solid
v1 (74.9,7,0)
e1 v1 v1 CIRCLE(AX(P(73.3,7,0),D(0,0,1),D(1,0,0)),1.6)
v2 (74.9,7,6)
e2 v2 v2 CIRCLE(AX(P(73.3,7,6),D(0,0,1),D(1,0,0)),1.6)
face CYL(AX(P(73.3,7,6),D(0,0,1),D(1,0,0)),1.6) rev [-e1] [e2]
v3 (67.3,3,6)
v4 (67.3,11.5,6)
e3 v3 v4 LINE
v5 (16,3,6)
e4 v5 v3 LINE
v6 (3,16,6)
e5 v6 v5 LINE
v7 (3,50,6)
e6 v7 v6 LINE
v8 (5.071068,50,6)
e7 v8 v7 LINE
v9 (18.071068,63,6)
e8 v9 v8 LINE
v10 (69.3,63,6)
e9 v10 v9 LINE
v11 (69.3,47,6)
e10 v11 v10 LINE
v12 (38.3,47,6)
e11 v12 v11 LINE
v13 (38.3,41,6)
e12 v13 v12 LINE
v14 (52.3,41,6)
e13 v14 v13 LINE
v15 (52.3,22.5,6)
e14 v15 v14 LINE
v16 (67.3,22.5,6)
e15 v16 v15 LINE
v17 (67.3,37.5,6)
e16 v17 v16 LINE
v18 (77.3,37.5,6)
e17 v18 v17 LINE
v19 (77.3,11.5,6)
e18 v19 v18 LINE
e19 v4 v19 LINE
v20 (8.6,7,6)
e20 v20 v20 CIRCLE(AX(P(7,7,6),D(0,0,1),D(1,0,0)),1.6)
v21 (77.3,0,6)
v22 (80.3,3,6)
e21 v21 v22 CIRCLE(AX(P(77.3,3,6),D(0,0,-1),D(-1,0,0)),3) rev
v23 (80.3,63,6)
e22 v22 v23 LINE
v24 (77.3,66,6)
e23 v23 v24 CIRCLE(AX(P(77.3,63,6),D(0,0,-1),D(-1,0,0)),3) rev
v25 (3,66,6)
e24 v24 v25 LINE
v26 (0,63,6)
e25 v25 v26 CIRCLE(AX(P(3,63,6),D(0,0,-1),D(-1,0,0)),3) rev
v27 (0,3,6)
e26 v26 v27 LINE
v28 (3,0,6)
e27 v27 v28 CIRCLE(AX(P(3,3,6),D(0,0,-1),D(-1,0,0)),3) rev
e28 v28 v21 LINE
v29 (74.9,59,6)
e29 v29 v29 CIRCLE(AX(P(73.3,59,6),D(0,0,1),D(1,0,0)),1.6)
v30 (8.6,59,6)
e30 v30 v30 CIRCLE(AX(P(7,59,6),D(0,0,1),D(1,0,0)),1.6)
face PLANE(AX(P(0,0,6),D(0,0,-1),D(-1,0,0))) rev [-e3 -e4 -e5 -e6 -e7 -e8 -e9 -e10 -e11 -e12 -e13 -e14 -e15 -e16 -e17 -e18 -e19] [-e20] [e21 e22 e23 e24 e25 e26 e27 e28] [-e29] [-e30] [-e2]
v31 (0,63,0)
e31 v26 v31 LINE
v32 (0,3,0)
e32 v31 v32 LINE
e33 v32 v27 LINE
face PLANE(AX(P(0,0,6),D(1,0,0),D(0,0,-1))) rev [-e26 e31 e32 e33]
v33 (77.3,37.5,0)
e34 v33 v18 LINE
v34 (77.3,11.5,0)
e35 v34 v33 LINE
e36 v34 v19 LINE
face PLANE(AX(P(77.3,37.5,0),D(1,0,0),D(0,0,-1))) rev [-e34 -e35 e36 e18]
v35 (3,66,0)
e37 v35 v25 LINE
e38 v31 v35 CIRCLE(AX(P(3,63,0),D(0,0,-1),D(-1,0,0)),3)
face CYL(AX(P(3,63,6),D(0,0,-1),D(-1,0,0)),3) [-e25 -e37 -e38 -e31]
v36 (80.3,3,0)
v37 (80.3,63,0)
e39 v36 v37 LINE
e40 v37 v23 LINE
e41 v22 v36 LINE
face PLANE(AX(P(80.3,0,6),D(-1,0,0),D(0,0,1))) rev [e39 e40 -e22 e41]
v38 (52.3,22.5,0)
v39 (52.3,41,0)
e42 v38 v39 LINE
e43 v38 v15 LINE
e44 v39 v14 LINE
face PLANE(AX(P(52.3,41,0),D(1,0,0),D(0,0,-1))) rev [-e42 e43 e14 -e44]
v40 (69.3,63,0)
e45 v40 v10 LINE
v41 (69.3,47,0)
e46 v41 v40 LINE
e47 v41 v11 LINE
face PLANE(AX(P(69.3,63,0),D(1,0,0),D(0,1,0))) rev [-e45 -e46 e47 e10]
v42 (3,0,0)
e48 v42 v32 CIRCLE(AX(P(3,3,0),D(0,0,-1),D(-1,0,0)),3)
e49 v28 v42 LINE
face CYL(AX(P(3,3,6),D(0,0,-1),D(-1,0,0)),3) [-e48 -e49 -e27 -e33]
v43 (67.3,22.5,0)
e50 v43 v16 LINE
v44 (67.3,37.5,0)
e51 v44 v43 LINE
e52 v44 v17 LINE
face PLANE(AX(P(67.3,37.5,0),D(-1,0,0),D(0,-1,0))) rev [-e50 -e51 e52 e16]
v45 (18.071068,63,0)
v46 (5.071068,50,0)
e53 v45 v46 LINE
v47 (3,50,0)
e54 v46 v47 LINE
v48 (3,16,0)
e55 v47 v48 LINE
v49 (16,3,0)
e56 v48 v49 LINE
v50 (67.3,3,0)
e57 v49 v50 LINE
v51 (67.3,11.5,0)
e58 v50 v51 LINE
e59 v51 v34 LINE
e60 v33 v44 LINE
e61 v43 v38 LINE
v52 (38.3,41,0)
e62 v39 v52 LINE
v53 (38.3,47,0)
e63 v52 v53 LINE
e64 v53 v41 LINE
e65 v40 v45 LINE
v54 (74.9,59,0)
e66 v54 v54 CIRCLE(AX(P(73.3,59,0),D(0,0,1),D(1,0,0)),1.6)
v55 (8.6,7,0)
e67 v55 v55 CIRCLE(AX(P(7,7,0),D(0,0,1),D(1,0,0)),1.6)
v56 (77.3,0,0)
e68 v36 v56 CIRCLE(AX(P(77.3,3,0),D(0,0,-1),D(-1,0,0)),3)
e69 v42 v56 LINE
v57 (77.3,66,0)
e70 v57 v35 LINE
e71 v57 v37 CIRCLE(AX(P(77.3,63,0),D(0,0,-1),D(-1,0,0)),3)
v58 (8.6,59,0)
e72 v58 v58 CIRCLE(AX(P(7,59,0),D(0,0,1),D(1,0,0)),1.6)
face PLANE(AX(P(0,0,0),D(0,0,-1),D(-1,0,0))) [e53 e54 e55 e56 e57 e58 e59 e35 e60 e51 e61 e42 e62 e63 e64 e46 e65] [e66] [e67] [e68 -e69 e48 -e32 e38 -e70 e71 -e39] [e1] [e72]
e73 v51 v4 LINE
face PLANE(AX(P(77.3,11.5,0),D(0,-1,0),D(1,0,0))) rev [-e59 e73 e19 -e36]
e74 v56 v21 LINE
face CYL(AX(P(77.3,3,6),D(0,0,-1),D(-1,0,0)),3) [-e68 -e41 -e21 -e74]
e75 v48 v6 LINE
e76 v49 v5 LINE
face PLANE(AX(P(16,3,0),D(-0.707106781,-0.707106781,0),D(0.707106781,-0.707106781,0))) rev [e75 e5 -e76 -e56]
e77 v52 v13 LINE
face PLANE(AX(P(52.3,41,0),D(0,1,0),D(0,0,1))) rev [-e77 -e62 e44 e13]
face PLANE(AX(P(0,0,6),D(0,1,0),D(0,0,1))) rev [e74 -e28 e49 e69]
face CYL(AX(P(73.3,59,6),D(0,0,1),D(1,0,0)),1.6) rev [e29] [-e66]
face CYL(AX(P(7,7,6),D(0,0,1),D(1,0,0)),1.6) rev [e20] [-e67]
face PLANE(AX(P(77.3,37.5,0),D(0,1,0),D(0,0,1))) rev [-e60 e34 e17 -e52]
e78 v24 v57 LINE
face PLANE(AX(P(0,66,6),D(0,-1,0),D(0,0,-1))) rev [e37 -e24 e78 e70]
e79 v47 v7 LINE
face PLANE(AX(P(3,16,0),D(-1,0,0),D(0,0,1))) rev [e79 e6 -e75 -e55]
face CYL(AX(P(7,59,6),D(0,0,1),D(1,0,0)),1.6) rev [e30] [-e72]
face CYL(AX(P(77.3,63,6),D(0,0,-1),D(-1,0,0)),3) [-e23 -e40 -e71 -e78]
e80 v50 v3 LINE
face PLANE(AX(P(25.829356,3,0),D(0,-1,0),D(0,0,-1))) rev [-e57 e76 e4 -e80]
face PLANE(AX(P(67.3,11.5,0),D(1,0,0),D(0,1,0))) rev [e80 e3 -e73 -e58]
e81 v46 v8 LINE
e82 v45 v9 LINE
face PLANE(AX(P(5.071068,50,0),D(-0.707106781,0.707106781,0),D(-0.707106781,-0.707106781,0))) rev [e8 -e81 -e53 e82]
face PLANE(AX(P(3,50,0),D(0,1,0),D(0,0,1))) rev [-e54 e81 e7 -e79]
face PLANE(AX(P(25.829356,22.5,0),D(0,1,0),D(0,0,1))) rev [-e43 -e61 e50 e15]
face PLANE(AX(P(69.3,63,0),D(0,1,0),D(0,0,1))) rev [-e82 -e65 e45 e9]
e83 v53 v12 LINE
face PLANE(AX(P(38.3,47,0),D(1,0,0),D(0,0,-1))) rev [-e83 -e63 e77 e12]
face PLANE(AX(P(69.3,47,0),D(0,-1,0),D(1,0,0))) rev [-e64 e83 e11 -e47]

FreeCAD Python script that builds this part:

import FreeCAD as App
import Part
import Sketcher

V = App.Vector
Q = App.Units.Quantity


def edges_at(feature, points):
    """Names of the edges that pass closest to the given points."""
    edges = feature.Shape.Edges
    near = lambda p: min(range(len(edges)), key=lambda i: edges[i].distToShape(Part.Vertex(*p))[0])
    return sorted({f"Edge{near(p) + 1}" for p in points})

doc = App.newDocument("Part")
params = doc.addObject("Spreadsheet::Sheet", "Params")
for row, (alias, value) in enumerate([
    ("sketch1_height", "66 mm"),
    ("sketch1_width", "80.3 mm"),
    ("pad1_length", "6 mm"),
    ("sketch2_diameter", "3.2 mm"),
    ("hole_diameter", "3.2 mm"),
    ("fillet_radius", "3 mm"),
    ("sketch3_width", "19 mm"),
    ("sketch3_width2", "31 mm"),
    ("sketch3_width3", "7 mm"),
    ("sketch3_width4", "13 mm"),
    ("sketch3_width5", "40 mm"),
    ("sketch4_width", "15 mm"),
    ("sketch4_width2", "14 mm"),
    ("sketch4_width3", "31 mm"),
    ("sketch4_height", "6 mm"),
    ("sketch4_height2", "16 mm"),
], start=1):
    params.set(f"A{row}", alias)
    params.set(f"B{row}", "=" + value)
    params.setAlias(f"B{row}", alias)

body = doc.addObject("PartDesign::Body", "Body")

sketch1 = body.newObject("Sketcher::SketchObject", "Sketch")
sketch1.AttachmentSupport = (doc.getObject("XY_Plane"), [""])
sketch1.MapMode = "FlatFace"
sketch1.addGeometry([
    Part.LineSegment(V(0, 66, 0), V(0, 0, 0)),
    Part.LineSegment(V(0, 0, 0), V(80.3, 0, 0)),
    Part.LineSegment(V(80.3, 0, 0), V(80.3, 66, 0)),
    Part.LineSegment(V(80.3, 66, 0), V(0, 66, 0)),
], False)
sketch1.addConstraint([
    Sketcher.Constraint("Coincident", 0, 2, 1, 1),
    Sketcher.Constraint("Coincident", 1, 2, 2, 1),
    Sketcher.Constraint("Coincident", 2, 2, 3, 1),
    Sketcher.Constraint("Coincident", 3, 2, 0, 1),
    Sketcher.Constraint("Vertical", 0),
    Sketcher.Constraint("Horizontal", 1),
    Sketcher.Constraint("Vertical", 2),
    Sketcher.Constraint("Horizontal", 3),
    Sketcher.Constraint("Coincident", 0, 2, -1, 1),
    Sketcher.Constraint("DistanceY", 0, 2, 0, 1, Q("66 mm")),
    Sketcher.Constraint("DistanceX", 1, 1, 1, 2, Q("80.3 mm")),
])
sketch1.setExpression("Constraints[9]", "Params.sketch1_height")
sketch1.setExpression("Constraints[10]", "Params.sketch1_width")
pad1 = body.newObject("PartDesign::Pad", "Pad")
pad1.Profile = sketch1
pad1.setExpression("Length", "Params.pad1_length")

sketch2 = body.newObject("Sketcher::SketchObject", "Sketch001")
sketch2.AttachmentSupport = (doc.getObject("XY_Plane"), [""])
sketch2.MapMode = "FlatFace"
sketch2.AttachmentOffset = App.Placement(V(0, 0, 6), App.Rotation())
sketch2.addGeometry([
    Part.Circle(V(7, 59, 0), V(0, 0, 1), 1.6),
    Part.Circle(V(73.3, 59, 0), V(0, 0, 1), 1.6),
    Part.Circle(V(73.3, 7, 0), V(0, 0, 1), 1.6),
    Part.Circle(V(7, 7, 0), V(0, 0, 1), 1.6),
], False)
sketch2.addConstraint([
    Sketcher.Constraint("Equal", 0, 1),
    Sketcher.Constraint("Equal", 1, 2),
    Sketcher.Constraint("Equal", 2, 3),
    Sketcher.Constraint("Horizontal", 0, 3, 1, 3),
    Sketcher.Constraint("Horizontal", 2, 3, 3, 3),
    Sketcher.Constraint("Vertical", 1, 3, 2, 3),
    Sketcher.Constraint("Vertical", 0, 3, 3, 3),
    Sketcher.Constraint("Diameter", 0, Q("3.2 mm")),
    Sketcher.Constraint("DistanceX", -1, 1, 0, 3, Q("7 mm")),
    Sketcher.Constraint("DistanceY", -1, 1, 0, 3, Q("59 mm")),
    Sketcher.Constraint("DistanceY", -1, 1, 2, 3, Q("7 mm")),
    Sketcher.Constraint("DistanceX", -1, 1, 1, 3, Q("73.3 mm")),
])
sketch2.setExpression("Constraints[7]", "Params.sketch2_diameter")
doc.recompute()
hole = body.newObject("PartDesign::Hole", "Hole")
hole.Profile = sketch2
hole.ThreadType = "None"
hole.setExpression("Diameter", "Params.hole_diameter")
hole.DepthType = "ThroughAll"
doc.recompute()

fillet = body.newObject("PartDesign::Fillet", "Fillet")
fillet.Base = (hole, edges_at(hole, [
    (0, 66, 3),
    (80.3, 66, 3),
    (80.3, 0, 3),
    (0, 0, 3),
]))
fillet.setExpression("Radius", "Params.fillet_radius")

sketch3 = body.newObject("Sketcher::SketchObject", "Sketch002")
sketch3.AttachmentSupport = (doc.getObject("XY_Plane"), [""])
sketch3.MapMode = "FlatFace"
sketch3.AttachmentOffset = App.Placement(V(0, 0, 6), App.Rotation())
sketch3.addGeometry([
    Part.LineSegment(V(3, 50, 0), V(3, 16, 0)),
    Part.LineSegment(V(3, 16, 0), V(22, 16, 0)),
    Part.LineSegment(V(22, 16, 0), V(22, 50, 0)),
    Part.LineSegment(V(22, 50, 0), V(3, 50, 0)),
    Part.LineSegment(V(38.3, 63, 0), V(38.3, 47, 0)),
    Part.LineSegment(V(38.3, 47, 0), V(69.3, 47, 0)),
    Part.LineSegment(V(69.3, 47, 0), V(69.3, 63, 0)),
    Part.LineSegment(V(69.3, 63, 0), V(38.3, 63, 0)),
    Part.LineSegment(V(28, 56.5, 0), V(28, 49.5, 0)),
    Part.LineSegment(V(28, 49.5, 0), V(35, 49.5, 0)),
    Part.LineSegment(V(35, 49.5, 0), V(35, 56.5, 0)),
    Part.LineSegment(V(35, 56.5, 0), V(28, 56.5, 0)),
    Part.LineSegment(V(39.3, 41, 0), V(39.3, 24, 0)),
    Part.LineSegment(V(39.3, 24, 0), V(52.3, 24, 0)),
    Part.LineSegment(V(52.3, 24, 0), V(52.3, 41, 0)),
    Part.LineSegment(V(52.3, 41, 0), V(39.3, 41, 0)),
    Part.LineSegment(V(25.829356, 22.5, 0), V(25.829356, 3, 0)),
    Part.LineSegment(V(25.829356, 3, 0), V(65.829356, 3, 0)),
    Part.LineSegment(V(65.829356, 3, 0), V(65.829356, 22.5, 0)),
    Part.LineSegment(V(65.829356, 22.5, 0), V(25.829356, 22.5, 0)),
    Part.LineSegment(V(67.3, 37.5, 0), V(67.3, 11.5, 0)),
    Part.LineSegment(V(67.3, 11.5, 0), V(77.3, 11.5, 0)),
    Part.LineSegment(V(77.3, 11.5, 0), V(77.3, 37.5, 0)),
    Part.LineSegment(V(77.3, 37.5, 0), V(67.3, 37.5, 0)),
], False)
sketch3.addConstraint([
    Sketcher.Constraint("Coincident", 0, 2, 1, 1),
    Sketcher.Constraint("Coincident", 1, 2, 2, 1),
    Sketcher.Constraint("Coincident", 2, 2, 3, 1),
    Sketcher.Constraint("Coincident", 3, 2, 0, 1),
    Sketcher.Constraint("Coincident", 4, 2, 5, 1),
    Sketcher.Constraint("Coincident", 5, 2, 6, 1),
    Sketcher.Constraint("Coincident", 6, 2, 7, 1),
    Sketcher.Constraint("Coincident", 7, 2, 4, 1),
    Sketcher.Constraint("Coincident", 8, 2, 9, 1),
    Sketcher.Constraint("Coincident", 9, 2, 10, 1),
    Sketcher.Constraint("Coincident", 10, 2, 11, 1),
    Sketcher.Constraint("Coincident", 11, 2, 8, 1),
    Sketcher.Constraint("Coincident", 12, 2, 13, 1),
    Sketcher.Constraint("Coincident", 13, 2, 14, 1),
    Sketcher.Constraint("Coincident", 14, 2, 15, 1),
    Sketcher.Constraint("Coincident", 15, 2, 12, 1),
    Sketcher.Constraint("Coincident", 16, 2, 17, 1),
    Sketcher.Constraint("Coincident", 17, 2, 18, 1),
    Sketcher.Constraint("Coincident", 18, 2, 19, 1),
    Sketcher.Constraint("Coincident", 19, 2, 16, 1),
    Sketcher.Constraint("Coincident", 20, 2, 21, 1),
    Sketcher.Constraint("Coincident", 21, 2, 22, 1),
    Sketcher.Constraint("Coincident", 22, 2, 23, 1),
    Sketcher.Constraint("Coincident", 23, 2, 20, 1),
    Sketcher.Constraint("Vertical", 0),
    Sketcher.Constraint("Horizontal", 1),
    Sketcher.Constraint("Vertical", 2),
    Sketcher.Constraint("Horizontal", 3),
    Sketcher.Constraint("Vertical", 4),
    Sketcher.Constraint("Horizontal", 5),
    Sketcher.Constraint("Vertical", 6),
    Sketcher.Constraint("Horizontal", 7),
    Sketcher.Constraint("Vertical", 8),
    Sketcher.Constraint("Horizontal", 9),
    Sketcher.Constraint("Vertical", 10),
    Sketcher.Constraint("Horizontal", 11),
    Sketcher.Constraint("Vertical", 12),
    Sketcher.Constraint("Horizontal", 13),
    Sketcher.Constraint("Vertical", 14),
    Sketcher.Constraint("Horizontal", 15),
    Sketcher.Constraint("Vertical", 16),
    Sketcher.Constraint("Horizontal", 17),
    Sketcher.Constraint("Vertical", 18),
    Sketcher.Constraint("Horizontal", 19),
    Sketcher.Constraint("Vertical", 20),
    Sketcher.Constraint("Horizontal", 21),
    Sketcher.Constraint("Vertical", 22),
    Sketcher.Constraint("Horizontal", 23),
    Sketcher.Constraint("Equal", 11, 8),
    Sketcher.Constraint("DistanceX", 1, 1, 1, 2, Q("19 mm")),
    Sketcher.Constraint("DistanceX", 5, 1, 5, 2, Q("31 mm")),
    Sketcher.Constraint("DistanceX", 9, 1, 9, 2, Q("7 mm")),
    Sketcher.Constraint("DistanceX", 13, 1, 13, 2, Q("13 mm")),
    Sketcher.Constraint("DistanceX", 17, 1, 17, 2, Q("40 mm")),
    Sketcher.Constraint("DistanceX", 21, 1, 21, 2, Q("10 mm")),
    Sketcher.Constraint("DistanceY", 0, 2, 0, 1, Q("34 mm")),
    Sketcher.Constraint("DistanceY", 4, 2, 4, 1, Q("16 mm")),
    Sketcher.Constraint("DistanceY", 12, 2, 12, 1, Q("17 mm")),
    Sketcher.Constraint("DistanceY", 20, 2, 20, 1, Q("26 mm")),
    Sketcher.Constraint("DistanceY", 16, 2, 16, 1, Q("19.5 mm")),
    Sketcher.Constraint("DistanceX", -1, 1, 0, 2, Q("3 mm")),
    Sketcher.Constraint("DistanceY", -1, 1, 0, 2, Q("16 mm")),
    Sketcher.Constraint("DistanceY", -1, 1, 4, 2, Q("47 mm")),
    Sketcher.Constraint("DistanceX", -1, 1, 8, 2, Q("28 mm")),
    Sketcher.Constraint("DistanceY", -1, 1, 12, 2, Q("24 mm")),
    Sketcher.Constraint("DistanceY", -1, 1, 16, 2, Q("3 mm")),
    Sketcher.Constraint("DistanceX", 4, 2, 12, 2, Q("1 mm")),
    Sketcher.Constraint("DistanceY", 20, 2, 18, 2, Q("11 mm")),
    Sketcher.Constraint("DistanceX", 13, 2, 20, 2, Q("15 mm")),
    Sketcher.Constraint("DistanceX", -1, 1, 4, 2, Q("38.3 mm")),
    Sketcher.Constraint("DistanceY", -1, 1, 8, 2, Q("49.5 mm")),
    Sketcher.Constraint("DistanceX", -1, 1, 16, 2, Q("25.829356 mm")),
])
sketch3.setExpression("Constraints[49]", "Params.sketch3_width")
sketch3.setExpression("Constraints[50]", "Params.sketch3_width2")
sketch3.setExpression("Constraints[51]", "Params.sketch3_width3")
sketch3.setExpression("Constraints[52]", "Params.sketch3_width4")
sketch3.setExpression("Constraints[53]", "Params.sketch3_width5")
pocket1 = body.newObject("PartDesign::Pocket", "Pocket")
pocket1.Profile = sketch3
pocket1.Type = "ThroughAll"

sketch4 = body.newObject("Sketcher::SketchObject", "Sketch003")
sketch4.AttachmentSupport = (doc.getObject("XY_Plane"), [""])
sketch4.MapMode = "FlatFace"
sketch4.AttachmentOffset = App.Placement(V(0, 0, 6), App.Rotation())
sketch4.addGeometry([
    Part.LineSegment(V(67.3, 3, 0), V(67.3, 22.5, 0)),
    Part.LineSegment(V(67.3, 22.5, 0), V(52.3, 22.5, 0)),
    Part.LineSegment(V(52.3, 22.5, 0), V(52.3, 41, 0)),
    Part.LineSegment(V(52.3, 41, 0), V(38.3, 41, 0)),
    Part.LineSegment(V(38.3, 41, 0), V(38.3, 47, 0)),
    Part.LineSegment(V(38.3, 47, 0), V(69.3, 47, 0)),
    Part.LineSegment(V(69.3, 47, 0), V(69.3, 63, 0)),
    Part.LineSegment(V(69.3, 63, 0), V(18.071068, 63, 0)),
    Part.LineSegment(V(18.071068, 63, 0), V(5.071068, 50, 0)),
    Part.LineSegment(V(5.071068, 50, 0), V(3, 50, 0)),
    Part.LineSegment(V(3, 50, 0), V(3, 16, 0)),
    Part.LineSegment(V(3, 16, 0), V(16, 3, 0)),
    Part.LineSegment(V(16, 3, 0), V(67.3, 3, 0)),
], False)
sketch4.addConstraint([
    Sketcher.Constraint("Coincident", 0, 2, 1, 1),
    Sketcher.Constraint("Coincident", 1, 2, 2, 1),
    Sketcher.Constraint("Coincident", 2, 2, 3, 1),
    Sketcher.Constraint("Coincident", 3, 2, 4, 1),
    Sketcher.Constraint("Coincident", 4, 2, 5, 1),
    Sketcher.Constraint("Coincident", 5, 2, 6, 1),
    Sketcher.Constraint("Coincident", 6, 2, 7, 1),
    Sketcher.Constraint("Coincident", 7, 2, 8, 1),
    Sketcher.Constraint("Coincident", 8, 2, 9, 1),
    Sketcher.Constraint("Coincident", 9, 2, 10, 1),
    Sketcher.Constraint("Coincident", 10, 2, 11, 1),
    Sketcher.Constraint("Coincident", 11, 2, 12, 1),
    Sketcher.Constraint("Coincident", 12, 2, 0, 1),
    Sketcher.Constraint("Vertical", 0),
    Sketcher.Constraint("Horizontal", 1),
    Sketcher.Constraint("Vertical", 2),
    Sketcher.Constraint("Horizontal", 3),
    Sketcher.Constraint("Vertical", 4),
    Sketcher.Constraint("Horizontal", 5),
    Sketcher.Constraint("Vertical", 6),
    Sketcher.Constraint("Horizontal", 7),
    Sketcher.Constraint("Horizontal", 9),
    Sketcher.Constraint("Vertical", 10),
    Sketcher.Constraint("Horizontal", 12),
    Sketcher.Constraint("Perpendicular", 8, 11),
    Sketcher.Constraint("Equal", 8, 11),
    Sketcher.Constraint("DistanceX", 1, 2, 1, 1, Q("15 mm")),
    Sketcher.Constraint("DistanceX", 3, 2, 3, 1, Q("14 mm")),
    Sketcher.Constraint("DistanceX", 5, 1, 5, 2, Q("31 mm")),
    Sketcher.Constraint("DistanceY", 4, 1, 4, 2, Q("6 mm")),
    Sketcher.Constraint("DistanceY", 6, 1, 6, 2, Q("16 mm")),
    Sketcher.Constraint("DistanceY", 10, 2, 10, 1, Q("34 mm")),
    Sketcher.Constraint("Angle", 8, Q("-135 deg")),
    Sketcher.Constraint("DistanceX", 12, 1, 12, 2, Q("51.3 mm")),
    Sketcher.Constraint("DistanceY", 0, 1, 0, 2, Q("19.5 mm")),
    Sketcher.Constraint("DistanceY", 2, 1, 2, 2, Q("18.5 mm")),
    Sketcher.Constraint("DistanceY", -1, 1, 2, 2, Q("41 mm")),
    Sketcher.Constraint("DistanceX", -1, 1, 9, 2, Q("3 mm")),
    Sketcher.Constraint("DistanceX", 7, 2, 7, 1, Q("51.228932 mm")),
])
sketch4.setExpression("Constraints[26]", "Params.sketch4_width")
sketch4.setExpression("Constraints[27]", "Params.sketch4_width2")
sketch4.setExpression("Constraints[28]", "Params.sketch4_width3")
sketch4.setExpression("Constraints[29]", "Params.sketch4_height")
sketch4.setExpression("Constraints[30]", "Params.sketch4_height2")
pocket2 = body.newObject("PartDesign::Pocket", "Pocket001")
pocket2.Profile = sketch4
pocket2.Type = "ThroughAll"

doc.recompute()
